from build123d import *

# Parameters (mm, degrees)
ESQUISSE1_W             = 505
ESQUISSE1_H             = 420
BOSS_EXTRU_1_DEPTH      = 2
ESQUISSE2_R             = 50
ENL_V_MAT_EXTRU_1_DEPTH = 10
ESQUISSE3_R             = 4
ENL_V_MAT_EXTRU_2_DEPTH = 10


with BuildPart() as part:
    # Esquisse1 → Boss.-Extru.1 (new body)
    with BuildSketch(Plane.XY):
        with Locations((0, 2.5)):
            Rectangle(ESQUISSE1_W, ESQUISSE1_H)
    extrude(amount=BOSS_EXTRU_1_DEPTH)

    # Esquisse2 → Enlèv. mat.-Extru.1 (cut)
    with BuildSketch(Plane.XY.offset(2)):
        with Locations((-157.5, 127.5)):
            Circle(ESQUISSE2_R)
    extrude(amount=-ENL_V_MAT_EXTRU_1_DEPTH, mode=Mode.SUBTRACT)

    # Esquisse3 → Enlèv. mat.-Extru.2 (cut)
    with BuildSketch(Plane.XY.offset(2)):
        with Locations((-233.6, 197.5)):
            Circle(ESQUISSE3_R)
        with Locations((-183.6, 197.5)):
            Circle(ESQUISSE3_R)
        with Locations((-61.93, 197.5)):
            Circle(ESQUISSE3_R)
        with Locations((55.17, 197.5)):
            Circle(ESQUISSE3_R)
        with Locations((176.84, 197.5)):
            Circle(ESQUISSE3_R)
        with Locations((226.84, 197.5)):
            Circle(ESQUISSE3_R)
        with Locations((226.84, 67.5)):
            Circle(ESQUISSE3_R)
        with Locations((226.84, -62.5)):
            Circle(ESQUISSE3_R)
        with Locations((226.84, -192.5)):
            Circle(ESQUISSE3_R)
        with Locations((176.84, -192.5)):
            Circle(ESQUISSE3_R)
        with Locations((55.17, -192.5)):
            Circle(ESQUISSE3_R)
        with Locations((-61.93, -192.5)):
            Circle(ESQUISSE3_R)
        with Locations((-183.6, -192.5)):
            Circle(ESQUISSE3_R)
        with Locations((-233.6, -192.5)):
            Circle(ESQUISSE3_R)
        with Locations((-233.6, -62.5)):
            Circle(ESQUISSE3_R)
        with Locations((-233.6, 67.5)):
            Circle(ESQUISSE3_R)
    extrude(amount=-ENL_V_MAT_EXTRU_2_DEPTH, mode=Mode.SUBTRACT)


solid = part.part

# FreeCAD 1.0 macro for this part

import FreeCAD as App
import Part
import Sketcher

doc = App.newDocument("Part")
body = doc.addObject("PartDesign::Body", "Body")

sketch1 = body.newObject("Sketcher::SketchObject", "Sketch")
sketch1.AttachmentSupport = (doc.getObject("XY_Plane"), [""])
sketch1.MapMode = "FlatFace"
sketch1.addGeometry(Part.LineSegment(App.Vector(-252, 212, 0), App.Vector(-252, -208, 0)), False)
sketch1.addGeometry(Part.LineSegment(App.Vector(-252, -208, 0), App.Vector(252, -208, 0)), False)
sketch1.addGeometry(Part.LineSegment(App.Vector(252, -208, 0), App.Vector(252, 212, 0)), False)
sketch1.addGeometry(Part.LineSegment(App.Vector(252, 212, 0), App.Vector(-252, 212, 0)), False)
sketch1.addConstraint(Sketcher.Constraint("Coincident", 0, 2, 1, 1))
sketch1.addConstraint(Sketcher.Constraint("Coincident", 1, 2, 2, 1))
sketch1.addConstraint(Sketcher.Constraint("Coincident", 2, 2, 3, 1))
sketch1.addConstraint(Sketcher.Constraint("Coincident", 3, 2, 0, 1))
sketch1.addConstraint(Sketcher.Constraint("Vertical", 0))
sketch1.addConstraint(Sketcher.Constraint("Horizontal", 1))
sketch1.addConstraint(Sketcher.Constraint("Vertical", 2))
sketch1.addConstraint(Sketcher.Constraint("Horizontal", 3))
sketch1.addConstraint(Sketcher.Constraint("DistanceX", 1, 1, 1, 2, 505.0))
sketch1.addConstraint(Sketcher.Constraint("DistanceY", 0, 2, 0, 1, 420.0))
sketch1.addConstraint(Sketcher.Constraint("DistanceX", 0, 2, -1, 1, 252.5))
sketch1.addConstraint(Sketcher.Constraint("DistanceY", 0, 2, -1, 1, 207.5))
pad1 = body.newObject("PartDesign::Pad", "Pad")
pad1.Profile = sketch1
pad1.Length = 2

sketch2 = body.newObject("Sketcher::SketchObject", "Sketch001")
sketch2.AttachmentSupport = (doc.getObject("XY_Plane"), [""])
sketch2.MapMode = "FlatFace"
sketch2.AttachmentOffset = App.Placement(App.Vector(0, 0, 2), App.Rotation())
sketch2.addGeometry(Part.Circle(App.Vector(-158, 128, 0), App.Vector(0, 0, 1), 50), False)
sketch2.addConstraint(Sketcher.Constraint("Diameter", 0, 100.0))
sketch2.addConstraint(Sketcher.Constraint("DistanceX", 0, 3, -1, 1, 157.5))
sketch2.addConstraint(Sketcher.Constraint("DistanceY", -1, 1, 0, 3, 127.5))
pocket1 = body.newObject("PartDesign::Pocket", "Pocket")
pocket1.Profile = sketch2
pocket1.Length = 10

sketch3 = body.newObject("Sketcher::SketchObject", "Sketch002")
sketch3.AttachmentSupport = (doc.getObject("XY_Plane"), [""])
sketch3.MapMode = "FlatFace"
sketch3.AttachmentOffset = App.Placement(App.Vector(0, 0, 2), App.Rotation())
sketch3.addGeometry(Part.Circle(App.Vector(-233.6, 197.5, 0), App.Vector(0, 0, 1), 4), False)
sketch3.addGeometry(Part.Circle(App.Vector(-183.6, 197.5, 0), App.Vector(0, 0, 1), 4), False)
sketch3.addGeometry(Part.Circle(App.Vector(-61.9, 197.5, 0), App.Vector(0, 0, 1), 4), False)
sketch3.addGeometry(Part.Circle(App.Vector(55.2, 197.5, 0), App.Vector(0, 0, 1), 4), False)
sketch3.addGeometry(Part.Circle(App.Vector(176.8, 197.5, 0), App.Vector(0, 0, 1), 4), False)
sketch3.addGeometry(Part.Circle(App.Vector(226.8, 197.5, 0), App.Vector(0, 0, 1), 4), False)
sketch3.addGeometry(Part.Circle(App.Vector(226.8, 67.5, 0), App.Vector(0, 0, 1), 4), False)
sketch3.addGeometry(Part.Circle(App.Vector(226.8, -62.5, 0), App.Vector(0, 0, 1), 4), False)
sketch3.addGeometry(Part.Circle(App.Vector(226.8, -192.5, 0), App.Vector(0, 0, 1), 4), False)
sketch3.addGeometry(Part.Circle(App.Vector(176.8, -192.5, 0), App.Vector(0, 0, 1), 4), False)
sketch3.addGeometry(Part.Circle(App.Vector(55.2, -192.5, 0), App.Vector(0, 0, 1), 4), False)
sketch3.addGeometry(Part.Circle(App.Vector(-61.9, -192.5, 0), App.Vector(0, 0, 1), 4), False)
sketch3.addGeometry(Part.Circle(App.Vector(-183.6, -192.5, 0), App.Vector(0, 0, 1), 4), False)
sketch3.addGeometry(Part.Circle(App.Vector(-233.6, -192.5, 0), App.Vector(0, 0, 1), 4), False)
sketch3.addGeometry(Part.Circle(App.Vector(-233.6, -62.5, 0), App.Vector(0, 0, 1), 4), False)
sketch3.addGeometry(Part.Circle(App.Vector(-233.6, 67.5, 0), App.Vector(0, 0, 1), 4), False)
sketch3.addConstraint(Sketcher.Constraint("Equal", 0, 1))
sketch3.addConstraint(Sketcher.Constraint("Equal", 1, 2))
sketch3.addConstraint(Sketcher.Constraint("Equal", 2, 3))
sketch3.addConstraint(Sketcher.Constraint("Equal", 3, 4))
sketch3.addConstraint(Sketcher.Constraint("Equal", 4, 5))
sketch3.addConstraint(Sketcher.Constraint("Equal", 5, 6))
sketch3.addConstraint(Sketcher.Constraint("Equal", 6, 7))
sketch3.addConstraint(Sketcher.Constraint("Equal", 7, 8))
sketch3.addConstraint(Sketcher.Constraint("Equal", 8, 9))
sketch3.addConstraint(Sketcher.Constraint("Equal", 9, 10))
sketch3.addConstraint(Sketcher.Constraint("Equal", 10, 11))
sketch3.addConstraint(Sketcher.Constraint("Equal", 11, 12))
sketch3.addConstraint(Sketcher.Constraint("Equal", 12, 13))
sketch3.addConstraint(Sketcher.Constraint("Equal", 13, 14))
sketch3.addConstraint(Sketcher.Constraint("Equal", 14, 15))
sketch3.addConstraint(Sketcher.Constraint("Horizontal", 0, 3, 1, 3))
sketch3.addConstraint(Sketcher.Constraint("Horizontal", 1, 3, 2, 3))
sketch3.addConstraint(Sketcher.Constraint("Horizontal", 2, 3, 3, 3))
sketch3.addConstraint(Sketcher.Constraint("Horizontal", 3, 3, 4, 3))
sketch3.addConstraint(Sketcher.Constraint("Horizontal", 4, 3, 5, 3))
sketch3.addConstraint(Sketcher.Constraint("Horizontal", 8, 3, 9, 3))
sketch3.addConstraint(Sketcher.Constraint("Horizontal", 9, 3, 10, 3))
sketch3.addConstraint(Sketcher.Constraint("Horizontal", 10, 3, 11, 3))
sketch3.addConstraint(Sketcher.Constraint("Horizontal", 11, 3, 12, 3))
sketch3.addConstraint(Sketcher.Constraint("Horizontal", 12, 3, 13, 3))
sketch3.addConstraint(Sketcher.Constraint("Horizontal", 7, 3, 14, 3))
sketch3.addConstraint(Sketcher.Constraint("Horizontal", 6, 3, 15, 3))
sketch3.addConstraint(Sketcher.Constraint("Vertical", 5, 3, 6, 3))
sketch3.addConstraint(Sketcher.Constraint("Vertical", 6, 3, 7, 3))
sketch3.addConstraint(Sketcher.Constraint("Vertical", 7, 3, 8, 3))
sketch3.addConstraint(Sketcher.Constraint("Vertical", 4, 3, 9, 3))
sketch3.addConstraint(Sketcher.Constraint("Vertical", 3, 3, 10, 3))
sketch3.addConstraint(Sketcher.Constraint("Vertical", 2, 3, 11, 3))
sketch3.addConstraint(Sketcher.Constraint("Vertical", 1, 3, 12, 3))
sketch3.addConstraint(Sketcher.Constraint("Vertical", 0, 3, 13, 3))
sketch3.addConstraint(Sketcher.Constraint("Vertical", 13, 3, 14, 3))
sketch3.addConstraint(Sketcher.Constraint("Vertical", 14, 3, 15, 3))
sketch3.addConstraint(Sketcher.Constraint("Diameter", 0, 8.0))
sketch3.addConstraint(Sketcher.Constraint("DistanceX", 0, 3, 1, 3, 50.0))
sketch3.addConstraint(Sketcher.Constraint("DistanceX", 4, 3, 5, 3, 50.0))
sketch3.addConstraint(Sketcher.Constraint("DistanceY", 6, 3, 5, 3, 130.0))
sketch3.addConstraint(Sketcher.Constraint("DistanceY", 7, 3, 6, 3, 130.0))
sketch3.addConstraint(Sketcher.Constraint("DistanceY", 8, 3, 7, 3, 130.0))
sketch3.addConstraint(Sketcher.Constraint("DistanceX", 0, 3, -1, 1, 233.6))
sketch3.addConstraint(Sketcher.Constraint("DistanceY", -1, 1, 0, 3, 197.5))
sketch3.addConstraint(Sketcher.Constraint("DistanceX", 2, 3, 3, 3, 117.1))
sketch3.addConstraint(Sketcher.Constraint("DistanceX", 2, 3, -1, 1, 61.93))
sketch3.addConstraint(Sketcher.Constraint("DistanceX", -1, 1, 4, 3, 176.84))
pocket2 = body.newObject("PartDesign::Pocket", "Pocket001")
pocket2.Profile = sketch3
pocket2.Length = 10

doc.recompute()
